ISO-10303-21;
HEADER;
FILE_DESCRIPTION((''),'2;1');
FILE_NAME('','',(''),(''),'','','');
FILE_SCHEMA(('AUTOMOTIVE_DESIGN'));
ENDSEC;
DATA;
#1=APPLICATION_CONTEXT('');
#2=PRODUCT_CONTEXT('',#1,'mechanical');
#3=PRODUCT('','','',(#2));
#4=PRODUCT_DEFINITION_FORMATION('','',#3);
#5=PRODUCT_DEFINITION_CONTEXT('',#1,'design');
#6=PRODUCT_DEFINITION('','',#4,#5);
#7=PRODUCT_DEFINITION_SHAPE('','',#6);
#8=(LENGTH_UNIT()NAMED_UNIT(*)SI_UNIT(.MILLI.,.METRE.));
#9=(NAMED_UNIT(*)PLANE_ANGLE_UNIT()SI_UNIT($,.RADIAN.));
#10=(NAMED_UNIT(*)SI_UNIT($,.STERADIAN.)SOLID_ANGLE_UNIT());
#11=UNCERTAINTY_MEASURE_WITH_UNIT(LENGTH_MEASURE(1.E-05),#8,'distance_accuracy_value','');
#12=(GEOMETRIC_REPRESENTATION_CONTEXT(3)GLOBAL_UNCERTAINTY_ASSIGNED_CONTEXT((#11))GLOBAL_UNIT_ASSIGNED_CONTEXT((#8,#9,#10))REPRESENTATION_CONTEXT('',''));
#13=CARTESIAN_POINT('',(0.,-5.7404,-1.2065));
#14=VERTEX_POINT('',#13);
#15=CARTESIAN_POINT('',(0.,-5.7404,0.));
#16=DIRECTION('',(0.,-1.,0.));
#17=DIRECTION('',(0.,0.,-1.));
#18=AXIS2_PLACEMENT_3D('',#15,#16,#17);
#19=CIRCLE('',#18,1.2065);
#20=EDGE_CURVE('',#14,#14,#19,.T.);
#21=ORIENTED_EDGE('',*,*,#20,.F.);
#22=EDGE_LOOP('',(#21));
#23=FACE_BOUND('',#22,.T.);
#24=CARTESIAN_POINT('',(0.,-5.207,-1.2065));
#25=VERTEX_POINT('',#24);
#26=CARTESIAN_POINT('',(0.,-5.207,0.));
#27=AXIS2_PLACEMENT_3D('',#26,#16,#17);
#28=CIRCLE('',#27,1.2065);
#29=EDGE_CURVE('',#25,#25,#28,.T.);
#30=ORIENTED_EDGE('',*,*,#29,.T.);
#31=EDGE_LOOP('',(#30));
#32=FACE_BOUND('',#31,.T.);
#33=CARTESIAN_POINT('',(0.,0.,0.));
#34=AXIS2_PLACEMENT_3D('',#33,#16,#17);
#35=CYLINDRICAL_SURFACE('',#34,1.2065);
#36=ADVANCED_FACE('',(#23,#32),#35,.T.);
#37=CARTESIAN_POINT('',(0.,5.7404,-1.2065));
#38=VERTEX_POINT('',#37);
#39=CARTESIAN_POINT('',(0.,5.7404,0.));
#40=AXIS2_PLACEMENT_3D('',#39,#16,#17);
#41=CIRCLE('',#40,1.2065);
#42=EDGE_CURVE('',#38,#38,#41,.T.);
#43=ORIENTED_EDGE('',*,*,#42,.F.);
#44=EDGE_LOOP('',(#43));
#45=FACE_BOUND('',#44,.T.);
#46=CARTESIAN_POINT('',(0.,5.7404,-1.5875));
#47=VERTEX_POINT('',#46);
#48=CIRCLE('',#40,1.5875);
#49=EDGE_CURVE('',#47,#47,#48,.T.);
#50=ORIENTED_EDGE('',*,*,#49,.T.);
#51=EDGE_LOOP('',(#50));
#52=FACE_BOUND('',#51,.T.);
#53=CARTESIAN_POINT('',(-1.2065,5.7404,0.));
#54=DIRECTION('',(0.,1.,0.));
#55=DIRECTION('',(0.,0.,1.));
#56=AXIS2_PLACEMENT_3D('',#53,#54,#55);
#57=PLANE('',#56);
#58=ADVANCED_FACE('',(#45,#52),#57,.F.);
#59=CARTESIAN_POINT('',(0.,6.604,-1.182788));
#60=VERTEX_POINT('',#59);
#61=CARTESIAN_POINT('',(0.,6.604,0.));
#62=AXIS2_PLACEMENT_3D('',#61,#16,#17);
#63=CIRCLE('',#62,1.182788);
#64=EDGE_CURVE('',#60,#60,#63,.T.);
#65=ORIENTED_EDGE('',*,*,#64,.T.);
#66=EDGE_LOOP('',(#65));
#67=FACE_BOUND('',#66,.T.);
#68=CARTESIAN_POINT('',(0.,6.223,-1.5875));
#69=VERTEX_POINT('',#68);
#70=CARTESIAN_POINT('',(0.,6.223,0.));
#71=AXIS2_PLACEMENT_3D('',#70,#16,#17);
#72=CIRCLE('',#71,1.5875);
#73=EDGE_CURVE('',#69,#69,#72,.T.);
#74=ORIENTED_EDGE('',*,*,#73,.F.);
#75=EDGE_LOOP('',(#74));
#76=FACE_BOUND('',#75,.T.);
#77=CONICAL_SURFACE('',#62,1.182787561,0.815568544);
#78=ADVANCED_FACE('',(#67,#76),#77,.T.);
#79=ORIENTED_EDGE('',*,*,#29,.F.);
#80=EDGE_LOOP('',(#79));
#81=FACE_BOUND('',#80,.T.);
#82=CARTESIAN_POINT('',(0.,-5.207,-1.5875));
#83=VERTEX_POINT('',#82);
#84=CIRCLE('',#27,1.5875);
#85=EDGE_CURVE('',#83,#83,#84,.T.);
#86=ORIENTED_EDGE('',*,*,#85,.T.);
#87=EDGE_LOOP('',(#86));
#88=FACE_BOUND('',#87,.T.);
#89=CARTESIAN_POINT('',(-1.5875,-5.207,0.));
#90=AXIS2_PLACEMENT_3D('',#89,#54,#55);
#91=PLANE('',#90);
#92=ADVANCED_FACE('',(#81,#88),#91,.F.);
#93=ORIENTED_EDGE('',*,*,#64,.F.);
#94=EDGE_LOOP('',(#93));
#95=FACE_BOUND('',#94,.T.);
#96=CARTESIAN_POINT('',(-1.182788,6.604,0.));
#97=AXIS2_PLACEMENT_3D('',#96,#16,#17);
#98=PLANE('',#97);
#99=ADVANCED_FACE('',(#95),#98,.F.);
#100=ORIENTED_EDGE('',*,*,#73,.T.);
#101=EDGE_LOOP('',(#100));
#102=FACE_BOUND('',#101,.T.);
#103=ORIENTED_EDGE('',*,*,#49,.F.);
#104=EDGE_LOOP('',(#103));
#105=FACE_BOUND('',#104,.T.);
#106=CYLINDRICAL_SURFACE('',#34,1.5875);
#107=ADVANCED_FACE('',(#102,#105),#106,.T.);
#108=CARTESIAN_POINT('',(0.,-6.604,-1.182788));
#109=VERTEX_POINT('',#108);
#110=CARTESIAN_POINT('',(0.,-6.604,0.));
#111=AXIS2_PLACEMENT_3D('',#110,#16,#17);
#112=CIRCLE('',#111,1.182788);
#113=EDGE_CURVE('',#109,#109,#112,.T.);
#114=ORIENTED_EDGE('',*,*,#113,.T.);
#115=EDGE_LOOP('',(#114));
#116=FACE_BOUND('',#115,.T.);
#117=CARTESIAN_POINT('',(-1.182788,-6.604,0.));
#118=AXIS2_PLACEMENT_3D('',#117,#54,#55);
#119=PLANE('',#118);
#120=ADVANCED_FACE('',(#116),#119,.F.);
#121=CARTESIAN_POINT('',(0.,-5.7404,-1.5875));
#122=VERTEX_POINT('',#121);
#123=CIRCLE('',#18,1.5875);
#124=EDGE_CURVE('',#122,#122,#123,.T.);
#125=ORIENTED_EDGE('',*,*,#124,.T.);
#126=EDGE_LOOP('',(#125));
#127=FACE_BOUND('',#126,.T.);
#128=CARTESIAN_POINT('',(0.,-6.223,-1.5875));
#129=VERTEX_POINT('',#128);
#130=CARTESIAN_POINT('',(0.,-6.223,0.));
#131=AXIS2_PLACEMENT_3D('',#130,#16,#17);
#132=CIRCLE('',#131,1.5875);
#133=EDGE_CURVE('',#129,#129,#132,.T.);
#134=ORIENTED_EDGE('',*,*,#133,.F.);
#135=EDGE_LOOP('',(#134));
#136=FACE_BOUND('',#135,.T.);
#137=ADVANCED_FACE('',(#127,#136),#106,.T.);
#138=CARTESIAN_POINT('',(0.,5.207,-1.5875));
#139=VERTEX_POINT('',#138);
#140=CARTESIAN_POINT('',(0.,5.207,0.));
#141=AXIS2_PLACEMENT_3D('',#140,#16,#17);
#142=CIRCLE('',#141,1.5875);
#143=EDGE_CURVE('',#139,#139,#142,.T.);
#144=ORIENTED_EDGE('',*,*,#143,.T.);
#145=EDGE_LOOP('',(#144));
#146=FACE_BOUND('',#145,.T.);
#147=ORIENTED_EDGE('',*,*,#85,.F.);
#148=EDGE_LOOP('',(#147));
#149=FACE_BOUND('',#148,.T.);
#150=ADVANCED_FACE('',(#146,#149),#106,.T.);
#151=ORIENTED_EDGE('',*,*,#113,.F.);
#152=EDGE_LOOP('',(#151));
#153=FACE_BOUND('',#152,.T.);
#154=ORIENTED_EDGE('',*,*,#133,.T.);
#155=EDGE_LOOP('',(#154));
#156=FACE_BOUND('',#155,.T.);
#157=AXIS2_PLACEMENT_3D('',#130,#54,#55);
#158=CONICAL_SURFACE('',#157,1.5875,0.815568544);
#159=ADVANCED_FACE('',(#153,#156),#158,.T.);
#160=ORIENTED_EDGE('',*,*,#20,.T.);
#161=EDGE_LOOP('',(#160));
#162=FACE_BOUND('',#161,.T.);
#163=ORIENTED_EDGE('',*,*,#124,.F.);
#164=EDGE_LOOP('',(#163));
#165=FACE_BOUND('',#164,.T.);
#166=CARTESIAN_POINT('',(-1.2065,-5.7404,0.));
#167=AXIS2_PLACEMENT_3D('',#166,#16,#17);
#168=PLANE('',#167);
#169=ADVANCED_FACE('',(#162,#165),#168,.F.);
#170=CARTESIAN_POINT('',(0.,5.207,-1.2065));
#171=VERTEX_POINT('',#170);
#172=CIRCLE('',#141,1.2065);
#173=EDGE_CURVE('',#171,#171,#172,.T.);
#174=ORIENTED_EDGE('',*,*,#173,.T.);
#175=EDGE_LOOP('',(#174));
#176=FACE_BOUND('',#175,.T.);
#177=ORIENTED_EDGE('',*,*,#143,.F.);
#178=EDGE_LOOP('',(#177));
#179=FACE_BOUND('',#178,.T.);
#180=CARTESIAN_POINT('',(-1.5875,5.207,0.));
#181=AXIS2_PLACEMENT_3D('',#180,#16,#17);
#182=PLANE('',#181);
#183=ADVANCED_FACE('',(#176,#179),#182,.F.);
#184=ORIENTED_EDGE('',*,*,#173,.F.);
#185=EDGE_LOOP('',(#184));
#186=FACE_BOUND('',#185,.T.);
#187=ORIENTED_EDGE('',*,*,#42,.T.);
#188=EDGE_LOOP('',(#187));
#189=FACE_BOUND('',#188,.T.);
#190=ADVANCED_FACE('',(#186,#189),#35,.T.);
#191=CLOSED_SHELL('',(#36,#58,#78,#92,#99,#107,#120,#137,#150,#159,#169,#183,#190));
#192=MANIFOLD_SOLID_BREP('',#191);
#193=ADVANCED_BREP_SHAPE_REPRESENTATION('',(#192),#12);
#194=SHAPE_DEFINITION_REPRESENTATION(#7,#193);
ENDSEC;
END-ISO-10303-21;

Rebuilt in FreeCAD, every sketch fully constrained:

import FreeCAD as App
import Part
import Sketcher
from FreeCAD import Vector
Q = App.Units.Quantity


def add_polygon(sketch, points):
    """Adds a closed chain of lines whose ends are joined by coincident constraints."""
    first, n = sketch.GeometryCount, len(points)
    for a, b in zip(points, points[1:] + points[:1]):
        sketch.addGeometry(Part.LineSegment(App.Vector(*a, 0), App.Vector(*b, 0)), False)
    for i in range(n):
        sketch.addConstraint(Sketcher.Constraint("Coincident", first + i, 2, first + (i + 1) % n, 1))

doc = App.newDocument("Part")
body = doc.addObject("PartDesign::Body", "Body")

# Sketch on XY plane
sketch1 = body.newObject("Sketcher::SketchObject", "Sketch")
sketch1.AttachmentSupport = (doc.getObject("XY_Plane"), [""])
sketch1.MapMode = "FlatFace"
add_polygon(sketch1, [(-1.59, 5.21), (-1.59, -5.21), (-1.21, -5.21), (-1.21, -5.74), (-1.59, -5.74), (-1.59, -6.22), (-1.18, -6.6), (0, -6.6), (0, 6.6), (-1.18, 6.6), (-1.59, 6.22), (-1.59, 5.74), (-1.21, 5.74), (-1.21, 5.21)])  # lines 0-13
sketch1.addConstraint(Sketcher.Constraint("Vertical", 0))
sketch1.addConstraint(Sketcher.Constraint("Horizontal", 1))
sketch1.addConstraint(Sketcher.Constraint("Vertical", 2))
sketch1.addConstraint(Sketcher.Constraint("Horizontal", 3))
sketch1.addConstraint(Sketcher.Constraint("Vertical", 4))
sketch1.addConstraint(Sketcher.Constraint("Horizontal", 6))
sketch1.addConstraint(Sketcher.Constraint("Vertical", 7))
sketch1.addConstraint(Sketcher.Constraint("Horizontal", 8))
sketch1.addConstraint(Sketcher.Constraint("Vertical", 10))
sketch1.addConstraint(Sketcher.Constraint("Horizontal", 11))
sketch1.addConstraint(Sketcher.Constraint("Vertical", 12))
sketch1.addConstraint(Sketcher.Constraint("Horizontal", 13))
sketch1.addConstraint(Sketcher.Constraint("Symmetric", 6, 2, 7, 2, -1, 1))
sketch1.addConstraint(Sketcher.Constraint("Symmetric", 4, 2, 9, 2, -1))
sketch1.addConstraint(Sketcher.Constraint("Symmetric", 2, 2, 11, 2, -1))
sketch1.addConstraint(Sketcher.Constraint("Vertical", 0, 2, 3, 2))
sketch1.addConstraint(Sketcher.Constraint("Vertical", 5, 2, 8, 2))
sketch1.addConstraint(Sketcher.Constraint("Equal", 2, 12))
sketch1.addConstraint(Sketcher.Constraint("DistanceY", 0, 2, 0, 1, Q("0.41 in")))
sketch1.addConstraint(Sketcher.Constraint("DistanceY", 7, 1, 7, 2, Q("0.52 in")))
sketch1.addConstraint(Sketcher.Constraint("DistanceX", 1, 1, 1, 2, Q("0.015 in")))
sketch1.addConstraint(Sketcher.Constraint("DistanceY", 2, 2, 2, 1, Q("0.021 in")))
sketch1.addConstraint(Sketcher.Constraint("DistanceY", 4, 2, 4, 1, Q("0.019 in")))
sketch1.addConstraint(Sketcher.Constraint("DistanceX", 0, 2, -1, 1, Q("0.0625 in")))
sketch1.addConstraint(Sketcher.Constraint("DistanceX", 6, 1, 6, 2, 1.182788))
revolution = body.newObject("PartDesign::Revolution", "Revolution")
revolution.Profile = sketch1
revolution.ReferenceAxis = (sketch1, ["V_Axis"])
revolution.Angle = 360

doc.recompute()
